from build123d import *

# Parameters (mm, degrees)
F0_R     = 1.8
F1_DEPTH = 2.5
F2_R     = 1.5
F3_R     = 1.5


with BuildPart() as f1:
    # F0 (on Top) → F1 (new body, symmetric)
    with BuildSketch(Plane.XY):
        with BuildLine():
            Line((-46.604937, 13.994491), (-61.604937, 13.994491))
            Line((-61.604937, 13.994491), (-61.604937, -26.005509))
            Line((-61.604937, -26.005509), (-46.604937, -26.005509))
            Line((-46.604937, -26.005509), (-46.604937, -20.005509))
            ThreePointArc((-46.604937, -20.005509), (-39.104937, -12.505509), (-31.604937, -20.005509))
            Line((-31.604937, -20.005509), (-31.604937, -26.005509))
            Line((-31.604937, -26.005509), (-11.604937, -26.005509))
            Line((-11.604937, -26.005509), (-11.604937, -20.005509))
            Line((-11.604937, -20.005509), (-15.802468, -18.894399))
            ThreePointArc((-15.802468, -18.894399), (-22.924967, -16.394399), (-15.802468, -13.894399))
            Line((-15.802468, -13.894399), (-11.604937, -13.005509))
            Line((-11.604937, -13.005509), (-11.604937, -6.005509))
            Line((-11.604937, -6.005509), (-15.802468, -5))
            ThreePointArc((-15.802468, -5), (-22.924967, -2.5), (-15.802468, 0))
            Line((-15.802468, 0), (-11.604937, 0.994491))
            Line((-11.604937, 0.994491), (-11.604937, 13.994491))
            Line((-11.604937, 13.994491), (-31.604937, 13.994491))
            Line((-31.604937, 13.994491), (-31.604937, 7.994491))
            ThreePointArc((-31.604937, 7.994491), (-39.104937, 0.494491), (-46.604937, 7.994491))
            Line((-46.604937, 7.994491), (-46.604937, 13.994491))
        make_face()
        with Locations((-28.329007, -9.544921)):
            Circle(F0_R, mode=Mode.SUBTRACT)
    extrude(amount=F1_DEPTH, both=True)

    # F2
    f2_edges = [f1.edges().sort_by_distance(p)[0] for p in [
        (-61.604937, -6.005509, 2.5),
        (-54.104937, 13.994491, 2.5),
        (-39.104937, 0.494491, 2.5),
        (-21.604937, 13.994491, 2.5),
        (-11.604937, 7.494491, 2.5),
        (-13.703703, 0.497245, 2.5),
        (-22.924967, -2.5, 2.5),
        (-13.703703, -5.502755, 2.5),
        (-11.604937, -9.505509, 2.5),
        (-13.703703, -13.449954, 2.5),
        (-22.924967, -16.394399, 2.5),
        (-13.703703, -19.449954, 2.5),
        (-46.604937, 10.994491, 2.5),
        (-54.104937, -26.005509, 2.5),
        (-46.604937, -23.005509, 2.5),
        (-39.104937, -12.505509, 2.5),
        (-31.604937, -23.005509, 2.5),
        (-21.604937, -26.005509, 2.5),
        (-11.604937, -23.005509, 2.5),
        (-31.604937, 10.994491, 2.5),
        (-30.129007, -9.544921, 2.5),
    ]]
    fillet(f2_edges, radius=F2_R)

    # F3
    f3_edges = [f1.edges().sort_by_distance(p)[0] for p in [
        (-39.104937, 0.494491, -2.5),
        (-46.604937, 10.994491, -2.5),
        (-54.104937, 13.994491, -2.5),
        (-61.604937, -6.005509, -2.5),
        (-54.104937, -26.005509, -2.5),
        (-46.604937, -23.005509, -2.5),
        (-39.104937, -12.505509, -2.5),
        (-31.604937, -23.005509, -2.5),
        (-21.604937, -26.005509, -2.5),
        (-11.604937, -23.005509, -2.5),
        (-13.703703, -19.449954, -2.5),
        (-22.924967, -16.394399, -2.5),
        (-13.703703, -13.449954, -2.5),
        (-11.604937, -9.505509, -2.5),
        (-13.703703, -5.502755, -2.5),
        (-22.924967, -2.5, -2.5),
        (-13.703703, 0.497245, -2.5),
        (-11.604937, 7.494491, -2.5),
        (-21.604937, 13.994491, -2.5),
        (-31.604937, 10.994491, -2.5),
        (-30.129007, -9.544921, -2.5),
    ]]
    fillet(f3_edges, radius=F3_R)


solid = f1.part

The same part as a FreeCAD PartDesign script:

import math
import FreeCAD as App
import Part
import Sketcher
from FreeCAD import Vector
Q = App.Units.Quantity


def edges_at(feature, points):
    """Names of the edges that pass closest to the given points."""
    edges = feature.Shape.Edges
    near = lambda p: min(range(len(edges)), key=lambda i: edges[i].distToShape(Part.Vertex(*p))[0])
    return sorted({f"Edge{near(p) + 1}" for p in points})

doc = App.newDocument("Part")
body = doc.addObject("PartDesign::Body", "Body")

sketch1 = body.newObject("Sketcher::SketchObject", "Sketch")
sketch1.AttachmentSupport = (doc.getObject("XY_Plane"), [""])
sketch1.MapMode = "FlatFace"
sketch1.addGeometry([
    Part.LineSegment(Vector(-46.604937, 13.994491, 0), Vector(-61.604937, 13.994491, 0)),
    Part.LineSegment(Vector(-61.604937, 13.994491, 0), Vector(-61.604937, -26.005509, 0)),
    Part.LineSegment(Vector(-61.604937, -26.005509, 0), Vector(-46.604937, -26.005509, 0)),
    Part.LineSegment(Vector(-46.604937, -26.005509, 0), Vector(-46.604937, -20.005509, 0)),
    Part.ArcOfCircle(Part.Circle(Vector(-39.104937, -20.005509, 0), Vector(0, 0, 1), 7.5), math.radians(0), math.radians(180)),
    Part.LineSegment(Vector(-31.604937, -20.005509, 0), Vector(-31.604937, -26.005509, 0)),
    Part.LineSegment(Vector(-31.604937, -26.005509, 0), Vector(-11.604937, -26.005509, 0)),
    Part.LineSegment(Vector(-11.604937, -26.005509, 0), Vector(-11.604937, -20.005509, 0)),
    Part.LineSegment(Vector(-11.604937, -20.005509, 0), Vector(-15.802468, -18.894399, 0)),
    Part.ArcOfCircle(Part.Circle(Vector(-18.924967, -16.394399, 0), Vector(0, 0, 1), 4), math.radians(38.682187), math.radians(321.317813)),
    Part.LineSegment(Vector(-15.802468, -13.894399, 0), Vector(-11.604937, -13.005509, 0)),
    Part.LineSegment(Vector(-11.604937, -13.005509, 0), Vector(-11.604937, -6.005509, 0)),
    Part.LineSegment(Vector(-11.604937, -6.005509, 0), Vector(-15.802468, -5, 0)),
    Part.ArcOfCircle(Part.Circle(Vector(-18.924967, -2.5, 0), Vector(0, 0, 1), 4), math.radians(38.682187), math.radians(321.317813)),
    Part.LineSegment(Vector(-15.802468, 0, 0), Vector(-11.604937, 0.994491, 0)),
    Part.LineSegment(Vector(-11.604937, 0.994491, 0), Vector(-11.604937, 13.994491, 0)),
    Part.LineSegment(Vector(-11.604937, 13.994491, 0), Vector(-31.604937, 13.994491, 0)),
    Part.LineSegment(Vector(-31.604937, 13.994491, 0), Vector(-31.604937, 7.994491, 0)),
    Part.ArcOfCircle(Part.Circle(Vector(-39.104937, 7.994491, 0), Vector(0, 0, 1), 7.5), math.radians(180), math.radians(360)),
    Part.LineSegment(Vector(-46.604937, 7.994491, 0), Vector(-46.604937, 13.994491, 0)),
    Part.Circle(Vector(-28.329007, -9.544921, 0), Vector(0, 0, 1), 1.8),
], False)
sketch1.addConstraint([
    Sketcher.Constraint("Coincident", 0, 2, 1, 1),
    Sketcher.Constraint("Coincident", 1, 2, 2, 1),
    Sketcher.Constraint("Coincident", 2, 2, 3, 1),
    Sketcher.Constraint("Tangent", 3, 2, 4, 2),
    Sketcher.Constraint("Tangent", 4, 1, 5, 1),
    Sketcher.Constraint("Coincident", 5, 2, 6, 1),
    Sketcher.Constraint("Coincident", 6, 2, 7, 1),
    Sketcher.Constraint("Coincident", 7, 2, 8, 1),
    Sketcher.Constraint("Coincident", 8, 2, 9, 2),
    Sketcher.Constraint("Coincident", 9, 1, 10, 1),
    Sketcher.Constraint("Coincident", 10, 2, 11, 1),
    Sketcher.Constraint("Coincident", 11, 2, 12, 1),
    Sketcher.Constraint("Coincident", 12, 2, 13, 2),
    Sketcher.Constraint("Coincident", 13, 1, 14, 1),
    Sketcher.Constraint("Coincident", 14, 2, 15, 1),
    Sketcher.Constraint("Coincident", 15, 2, 16, 1),
    Sketcher.Constraint("Coincident", 16, 2, 17, 1),
    Sketcher.Constraint("Tangent", 17, 2, 18, 2),
    Sketcher.Constraint("Tangent", 18, 1, 19, 1),
    Sketcher.Constraint("Coincident", 19, 2, 0, 1),
    Sketcher.Constraint("Horizontal", 0),
    Sketcher.Constraint("Vertical", 1),
    Sketcher.Constraint("Horizontal", 2),
    Sketcher.Constraint("Vertical", 3),
    Sketcher.Constraint("Vertical", 5),
    Sketcher.Constraint("Horizontal", 6),
    Sketcher.Constraint("Vertical", 7),
    Sketcher.Constraint("Vertical", 11),
    Sketcher.Constraint("Vertical", 15),
    Sketcher.Constraint("Horizontal", 16),
    Sketcher.Constraint("Vertical", 17),
    Sketcher.Constraint("Vertical", 19),
    Sketcher.Constraint("Equal", 9, 13),
    Sketcher.Constraint("Equal", 4, 18),
    Sketcher.Constraint("PointOnObject", 13, 1, -1),
    Sketcher.Constraint("Horizontal", 2, 2, 5, 2),
    Sketcher.Constraint("Horizontal", 4, 1, 7, 2),
    Sketcher.Constraint("Horizontal", 0, 2, 15, 2),
    Sketcher.Constraint("Vertical", 9, 3, 13, 3),
    Sketcher.Constraint("Vertical", 4, 3, 18, 3),
    Sketcher.Constraint("Vertical", 8, 2, 9, 1),
    Sketcher.Constraint("Vertical", 7, 2, 10, 2),
    Sketcher.Constraint("Vertical", 9, 1, 12, 2),
    Sketcher.Constraint("Vertical", 12, 2, 13, 1),
    Sketcher.Constraint("Vertical", 11, 2, 14, 2),
    Sketcher.Constraint("Equal", 7, 17),
    Sketcher.Constraint("Radius", 9, Q("4 mm")),
    Sketcher.Constraint("Diameter", 20, Q("3.6 mm")),
    Sketcher.Constraint("Radius", 4, Q("7.5 mm")),
    Sketcher.Constraint("DistanceX", 0, 2, 0, 1, Q("15 mm")),
    Sketcher.Constraint("DistanceX", 6, 1, 6, 2, Q("20 mm")),
    Sketcher.Constraint("DistanceY", 1, 2, 1, 1, Q("40 mm")),
    Sketcher.Constraint("DistanceY", 3, 1, 3, 2, Q("6 mm")),
    Sketcher.Constraint("DistanceY", 11, 1, 11, 2, Q("7 mm")),
    Sketcher.Constraint("DistanceY", 15, 1, 15, 2, Q("13 mm")),
    Sketcher.Constraint("DistanceY", 12, 2, -1, 1, Q("5 mm")),
    Sketcher.Constraint("DistanceY", 7, 2, 10, 2, Q("7 mm")),
    Sketcher.Constraint("Distance", 8, Q("4.3421 mm")),
    Sketcher.Constraint("DistanceY", 9, 3, -1, 1, Q("16.394399 mm")),
    Sketcher.Constraint("Distance", 14, Q("4.313731 mm")),
    Sketcher.Constraint("DistanceY", 20, 3, -1, 1, Q("9.544921 mm")),
    Sketcher.Constraint("DistanceX", 9, 1, -1, 1, Q("15.802468 mm")),
    Sketcher.Constraint("DistanceX", 20, 3, 9, 3, Q("9.40404 mm")),
])
pad1 = body.newObject("PartDesign::Pad", "Pad")
pad1.Profile = sketch1
pad1.Length = 5
pad1.Midplane = True
doc.recompute()

fillet = body.newObject("PartDesign::Fillet", "Fillet")
fillet.Base = (pad1, edges_at(pad1, [
    (-61.605, -6.006, 2.5),
    (-54.105, 13.994, 2.5),
    (-39.105, 0.494, 2.5),
    (-21.605, 13.994, 2.5),
    (-11.605, 7.494, 2.5),
    (-13.704, 0.497, 2.5),
    (-22.925, -2.5, 2.5),
    (-13.704, -5.503, 2.5),
    (-11.605, -9.506, 2.5),
    (-13.704, -13.45, 2.5),
    (-22.925, -16.394, 2.5),
    (-13.704, -19.45, 2.5),
    (-46.605, 10.994, 2.5),
    (-54.105, -26.006, 2.5),
    (-46.605, -23.006, 2.5),
    (-39.105, -12.506, 2.5),
    (-31.605, -23.006, 2.5),
    (-21.605, -26.006, 2.5),
    (-11.605, -23.006, 2.5),
    (-31.605, 10.994, 2.5),
    (-30.129, -9.545, 2.5),
]))
fillet.Radius = 1.5
doc.recompute()

fillet2 = body.newObject("PartDesign::Fillet", "Fillet001")
fillet2.Base = (fillet, edges_at(fillet, [
    (-39.105, 0.494, -2.5),
    (-46.605, 10.994, -2.5),
    (-54.105, 13.994, -2.5),
    (-61.605, -6.006, -2.5),
    (-54.105, -26.006, -2.5),
    (-46.605, -23.006, -2.5),
    (-39.105, -12.506, -2.5),
    (-31.605, -23.006, -2.5),
    (-21.605, -26.006, -2.5),
    (-11.605, -23.006, -2.5),
    (-13.704, -19.45, -2.5),
    (-22.925, -16.394, -2.5),
    (-13.704, -13.45, -2.5),
    (-11.605, -9.506, -2.5),
    (-13.704, -5.503, -2.5),
    (-22.925, -2.5, -2.5),
    (-13.704, 0.497, -2.5),
    (-11.605, 7.494, -2.5),
    (-21.605, 13.994, -2.5),
    (-31.605, 10.994, -2.5),
    (-30.129, -9.545, -2.5),
]))
fillet2.Radius = 1.5

doc.recompute()
